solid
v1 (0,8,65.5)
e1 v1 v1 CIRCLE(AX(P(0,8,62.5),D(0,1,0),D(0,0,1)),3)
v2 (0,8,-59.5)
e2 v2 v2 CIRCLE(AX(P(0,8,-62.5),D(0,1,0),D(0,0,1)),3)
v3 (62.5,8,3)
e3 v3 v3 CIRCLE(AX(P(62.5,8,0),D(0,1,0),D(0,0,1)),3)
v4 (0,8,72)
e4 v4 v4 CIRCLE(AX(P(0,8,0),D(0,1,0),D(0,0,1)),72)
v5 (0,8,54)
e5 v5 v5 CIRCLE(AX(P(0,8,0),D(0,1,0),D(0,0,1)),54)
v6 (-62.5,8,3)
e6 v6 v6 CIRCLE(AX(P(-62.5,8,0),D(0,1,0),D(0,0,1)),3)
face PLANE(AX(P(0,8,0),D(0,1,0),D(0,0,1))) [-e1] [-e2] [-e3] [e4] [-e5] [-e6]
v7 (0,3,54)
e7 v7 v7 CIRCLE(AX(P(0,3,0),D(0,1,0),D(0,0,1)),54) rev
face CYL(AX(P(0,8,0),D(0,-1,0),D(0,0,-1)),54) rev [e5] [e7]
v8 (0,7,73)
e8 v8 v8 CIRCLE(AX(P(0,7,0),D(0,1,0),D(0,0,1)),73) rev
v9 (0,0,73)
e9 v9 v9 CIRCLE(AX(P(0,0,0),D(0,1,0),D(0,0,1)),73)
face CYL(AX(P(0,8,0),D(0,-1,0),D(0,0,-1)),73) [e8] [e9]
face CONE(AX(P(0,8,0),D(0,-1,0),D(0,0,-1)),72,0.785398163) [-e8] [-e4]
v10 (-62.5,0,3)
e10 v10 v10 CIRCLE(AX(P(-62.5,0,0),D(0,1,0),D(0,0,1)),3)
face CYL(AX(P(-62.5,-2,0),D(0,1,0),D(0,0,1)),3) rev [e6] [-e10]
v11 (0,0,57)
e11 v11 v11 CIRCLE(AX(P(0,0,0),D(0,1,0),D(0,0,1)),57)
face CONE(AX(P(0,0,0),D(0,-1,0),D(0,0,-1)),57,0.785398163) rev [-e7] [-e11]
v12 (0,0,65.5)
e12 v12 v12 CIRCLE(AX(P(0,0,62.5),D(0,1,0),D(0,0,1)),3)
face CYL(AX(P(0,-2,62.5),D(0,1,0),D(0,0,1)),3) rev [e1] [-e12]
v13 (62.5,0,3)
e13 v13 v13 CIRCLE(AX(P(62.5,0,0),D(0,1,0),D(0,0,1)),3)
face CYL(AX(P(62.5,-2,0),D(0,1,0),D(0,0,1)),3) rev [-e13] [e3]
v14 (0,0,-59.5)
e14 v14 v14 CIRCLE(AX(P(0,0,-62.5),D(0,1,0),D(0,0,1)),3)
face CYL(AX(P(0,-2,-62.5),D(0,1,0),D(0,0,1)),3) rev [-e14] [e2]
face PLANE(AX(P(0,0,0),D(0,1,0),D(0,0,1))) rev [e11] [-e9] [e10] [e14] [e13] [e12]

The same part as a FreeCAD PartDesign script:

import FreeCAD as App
import Part
import Sketcher


def edges_at(feature, points):
    """Names of the edges that pass closest to the given points."""
    edges = feature.Shape.Edges
    near = lambda p: min(range(len(edges)), key=lambda i: edges[i].distToShape(Part.Vertex(*p))[0])
    return sorted({f"Edge{near(p) + 1}" for p in points})

doc = App.newDocument("Part")
body = doc.addObject("PartDesign::Body", "Body")

# Sketch on XZ plane
sketch1 = body.newObject("Sketcher::SketchObject", "Sketch")
sketch1.AttachmentSupport = (doc.getObject("XZ_Plane"), [""])
sketch1.MapMode = "FlatFace"
sketch1.addGeometry(Part.Circle(App.Vector(0, 0, 0), App.Vector(0, 0, 1), 73), False)
sketch1.addGeometry(Part.Circle(App.Vector(0, 0, 0), App.Vector(0, 0, 1), 54), False)
sketch1.addConstraint(Sketcher.Constraint("Coincident", 0, 3, -1, 1))
sketch1.addConstraint(Sketcher.Constraint("Coincident", 1, 3, -1, 1))
sketch1.addConstraint(Sketcher.Constraint("Diameter", 0, 146.0))
sketch1.addConstraint(Sketcher.Constraint("Diameter", 1, 108.0))
pad1 = body.newObject("PartDesign::Pad", "Pad")
pad1.Profile = sketch1
pad1.Length = 8
pad1.Reversed = True

# Sketch on XZ plane
sketch2 = body.newObject("Sketcher::SketchObject", "Sketch001")
sketch2.AttachmentSupport = (doc.getObject("XZ_Plane"), [""])
sketch2.MapMode = "FlatFace"
sketch2.AttachmentOffset = App.Placement(App.Vector(0, 0, -8), App.Rotation())
sketch2.addGeometry(Part.Circle(App.Vector(-62.5, 0, 0), App.Vector(0, 0, 1), 3), False)
sketch2.addGeometry(Part.Circle(App.Vector(0, -62.5, 0), App.Vector(0, 0, 1), 3), False)
sketch2.addGeometry(Part.Circle(App.Vector(0, 62.5, 0), App.Vector(0, 0, 1), 3), False)
sketch2.addGeometry(Part.Circle(App.Vector(62.5, 0, 0), App.Vector(0, 0, 1), 3), False)
sketch2.addConstraint(Sketcher.Constraint("Equal", 0, 1))
sketch2.addConstraint(Sketcher.Constraint("Equal", 1, 2))
sketch2.addConstraint(Sketcher.Constraint("Equal", 2, 3))
sketch2.addConstraint(Sketcher.Constraint("Symmetric", 1, 3, 2, 3, -1, 1))
sketch2.addConstraint(Sketcher.Constraint("Symmetric", 0, 3, 3, 3, -1, 1))
sketch2.addConstraint(Sketcher.Constraint("PointOnObject", 0, 3, -1))
sketch2.addConstraint(Sketcher.Constraint("PointOnObject", 1, 3, -2))
sketch2.addConstraint(Sketcher.Constraint("Diameter", 0, 6.0))
sketch2.addConstraint(Sketcher.Constraint("DistanceY", 1, 3, 2, 3, 125.0))
sketch2.addConstraint(Sketcher.Constraint("DistanceX", 0, 3, 3, 3, 125.0))
pocket1 = body.newObject("PartDesign::Pocket", "Pocket")
pocket1.Profile = sketch2
pocket1.Length = 10
pocket1.Reversed = True
doc.recompute()

chamfer = body.newObject("PartDesign::Chamfer", "Chamfer")
chamfer.Base = (pocket1, edges_at(pocket1, [(0, 8, -73)]))
chamfer.Size = 1
doc.recompute()

chamfer2 = body.newObject("PartDesign::Chamfer", "Chamfer001")
chamfer2.Base = (chamfer, edges_at(chamfer, [(0, 0, -54)]))
chamfer2.Size = 3

doc.recompute()
